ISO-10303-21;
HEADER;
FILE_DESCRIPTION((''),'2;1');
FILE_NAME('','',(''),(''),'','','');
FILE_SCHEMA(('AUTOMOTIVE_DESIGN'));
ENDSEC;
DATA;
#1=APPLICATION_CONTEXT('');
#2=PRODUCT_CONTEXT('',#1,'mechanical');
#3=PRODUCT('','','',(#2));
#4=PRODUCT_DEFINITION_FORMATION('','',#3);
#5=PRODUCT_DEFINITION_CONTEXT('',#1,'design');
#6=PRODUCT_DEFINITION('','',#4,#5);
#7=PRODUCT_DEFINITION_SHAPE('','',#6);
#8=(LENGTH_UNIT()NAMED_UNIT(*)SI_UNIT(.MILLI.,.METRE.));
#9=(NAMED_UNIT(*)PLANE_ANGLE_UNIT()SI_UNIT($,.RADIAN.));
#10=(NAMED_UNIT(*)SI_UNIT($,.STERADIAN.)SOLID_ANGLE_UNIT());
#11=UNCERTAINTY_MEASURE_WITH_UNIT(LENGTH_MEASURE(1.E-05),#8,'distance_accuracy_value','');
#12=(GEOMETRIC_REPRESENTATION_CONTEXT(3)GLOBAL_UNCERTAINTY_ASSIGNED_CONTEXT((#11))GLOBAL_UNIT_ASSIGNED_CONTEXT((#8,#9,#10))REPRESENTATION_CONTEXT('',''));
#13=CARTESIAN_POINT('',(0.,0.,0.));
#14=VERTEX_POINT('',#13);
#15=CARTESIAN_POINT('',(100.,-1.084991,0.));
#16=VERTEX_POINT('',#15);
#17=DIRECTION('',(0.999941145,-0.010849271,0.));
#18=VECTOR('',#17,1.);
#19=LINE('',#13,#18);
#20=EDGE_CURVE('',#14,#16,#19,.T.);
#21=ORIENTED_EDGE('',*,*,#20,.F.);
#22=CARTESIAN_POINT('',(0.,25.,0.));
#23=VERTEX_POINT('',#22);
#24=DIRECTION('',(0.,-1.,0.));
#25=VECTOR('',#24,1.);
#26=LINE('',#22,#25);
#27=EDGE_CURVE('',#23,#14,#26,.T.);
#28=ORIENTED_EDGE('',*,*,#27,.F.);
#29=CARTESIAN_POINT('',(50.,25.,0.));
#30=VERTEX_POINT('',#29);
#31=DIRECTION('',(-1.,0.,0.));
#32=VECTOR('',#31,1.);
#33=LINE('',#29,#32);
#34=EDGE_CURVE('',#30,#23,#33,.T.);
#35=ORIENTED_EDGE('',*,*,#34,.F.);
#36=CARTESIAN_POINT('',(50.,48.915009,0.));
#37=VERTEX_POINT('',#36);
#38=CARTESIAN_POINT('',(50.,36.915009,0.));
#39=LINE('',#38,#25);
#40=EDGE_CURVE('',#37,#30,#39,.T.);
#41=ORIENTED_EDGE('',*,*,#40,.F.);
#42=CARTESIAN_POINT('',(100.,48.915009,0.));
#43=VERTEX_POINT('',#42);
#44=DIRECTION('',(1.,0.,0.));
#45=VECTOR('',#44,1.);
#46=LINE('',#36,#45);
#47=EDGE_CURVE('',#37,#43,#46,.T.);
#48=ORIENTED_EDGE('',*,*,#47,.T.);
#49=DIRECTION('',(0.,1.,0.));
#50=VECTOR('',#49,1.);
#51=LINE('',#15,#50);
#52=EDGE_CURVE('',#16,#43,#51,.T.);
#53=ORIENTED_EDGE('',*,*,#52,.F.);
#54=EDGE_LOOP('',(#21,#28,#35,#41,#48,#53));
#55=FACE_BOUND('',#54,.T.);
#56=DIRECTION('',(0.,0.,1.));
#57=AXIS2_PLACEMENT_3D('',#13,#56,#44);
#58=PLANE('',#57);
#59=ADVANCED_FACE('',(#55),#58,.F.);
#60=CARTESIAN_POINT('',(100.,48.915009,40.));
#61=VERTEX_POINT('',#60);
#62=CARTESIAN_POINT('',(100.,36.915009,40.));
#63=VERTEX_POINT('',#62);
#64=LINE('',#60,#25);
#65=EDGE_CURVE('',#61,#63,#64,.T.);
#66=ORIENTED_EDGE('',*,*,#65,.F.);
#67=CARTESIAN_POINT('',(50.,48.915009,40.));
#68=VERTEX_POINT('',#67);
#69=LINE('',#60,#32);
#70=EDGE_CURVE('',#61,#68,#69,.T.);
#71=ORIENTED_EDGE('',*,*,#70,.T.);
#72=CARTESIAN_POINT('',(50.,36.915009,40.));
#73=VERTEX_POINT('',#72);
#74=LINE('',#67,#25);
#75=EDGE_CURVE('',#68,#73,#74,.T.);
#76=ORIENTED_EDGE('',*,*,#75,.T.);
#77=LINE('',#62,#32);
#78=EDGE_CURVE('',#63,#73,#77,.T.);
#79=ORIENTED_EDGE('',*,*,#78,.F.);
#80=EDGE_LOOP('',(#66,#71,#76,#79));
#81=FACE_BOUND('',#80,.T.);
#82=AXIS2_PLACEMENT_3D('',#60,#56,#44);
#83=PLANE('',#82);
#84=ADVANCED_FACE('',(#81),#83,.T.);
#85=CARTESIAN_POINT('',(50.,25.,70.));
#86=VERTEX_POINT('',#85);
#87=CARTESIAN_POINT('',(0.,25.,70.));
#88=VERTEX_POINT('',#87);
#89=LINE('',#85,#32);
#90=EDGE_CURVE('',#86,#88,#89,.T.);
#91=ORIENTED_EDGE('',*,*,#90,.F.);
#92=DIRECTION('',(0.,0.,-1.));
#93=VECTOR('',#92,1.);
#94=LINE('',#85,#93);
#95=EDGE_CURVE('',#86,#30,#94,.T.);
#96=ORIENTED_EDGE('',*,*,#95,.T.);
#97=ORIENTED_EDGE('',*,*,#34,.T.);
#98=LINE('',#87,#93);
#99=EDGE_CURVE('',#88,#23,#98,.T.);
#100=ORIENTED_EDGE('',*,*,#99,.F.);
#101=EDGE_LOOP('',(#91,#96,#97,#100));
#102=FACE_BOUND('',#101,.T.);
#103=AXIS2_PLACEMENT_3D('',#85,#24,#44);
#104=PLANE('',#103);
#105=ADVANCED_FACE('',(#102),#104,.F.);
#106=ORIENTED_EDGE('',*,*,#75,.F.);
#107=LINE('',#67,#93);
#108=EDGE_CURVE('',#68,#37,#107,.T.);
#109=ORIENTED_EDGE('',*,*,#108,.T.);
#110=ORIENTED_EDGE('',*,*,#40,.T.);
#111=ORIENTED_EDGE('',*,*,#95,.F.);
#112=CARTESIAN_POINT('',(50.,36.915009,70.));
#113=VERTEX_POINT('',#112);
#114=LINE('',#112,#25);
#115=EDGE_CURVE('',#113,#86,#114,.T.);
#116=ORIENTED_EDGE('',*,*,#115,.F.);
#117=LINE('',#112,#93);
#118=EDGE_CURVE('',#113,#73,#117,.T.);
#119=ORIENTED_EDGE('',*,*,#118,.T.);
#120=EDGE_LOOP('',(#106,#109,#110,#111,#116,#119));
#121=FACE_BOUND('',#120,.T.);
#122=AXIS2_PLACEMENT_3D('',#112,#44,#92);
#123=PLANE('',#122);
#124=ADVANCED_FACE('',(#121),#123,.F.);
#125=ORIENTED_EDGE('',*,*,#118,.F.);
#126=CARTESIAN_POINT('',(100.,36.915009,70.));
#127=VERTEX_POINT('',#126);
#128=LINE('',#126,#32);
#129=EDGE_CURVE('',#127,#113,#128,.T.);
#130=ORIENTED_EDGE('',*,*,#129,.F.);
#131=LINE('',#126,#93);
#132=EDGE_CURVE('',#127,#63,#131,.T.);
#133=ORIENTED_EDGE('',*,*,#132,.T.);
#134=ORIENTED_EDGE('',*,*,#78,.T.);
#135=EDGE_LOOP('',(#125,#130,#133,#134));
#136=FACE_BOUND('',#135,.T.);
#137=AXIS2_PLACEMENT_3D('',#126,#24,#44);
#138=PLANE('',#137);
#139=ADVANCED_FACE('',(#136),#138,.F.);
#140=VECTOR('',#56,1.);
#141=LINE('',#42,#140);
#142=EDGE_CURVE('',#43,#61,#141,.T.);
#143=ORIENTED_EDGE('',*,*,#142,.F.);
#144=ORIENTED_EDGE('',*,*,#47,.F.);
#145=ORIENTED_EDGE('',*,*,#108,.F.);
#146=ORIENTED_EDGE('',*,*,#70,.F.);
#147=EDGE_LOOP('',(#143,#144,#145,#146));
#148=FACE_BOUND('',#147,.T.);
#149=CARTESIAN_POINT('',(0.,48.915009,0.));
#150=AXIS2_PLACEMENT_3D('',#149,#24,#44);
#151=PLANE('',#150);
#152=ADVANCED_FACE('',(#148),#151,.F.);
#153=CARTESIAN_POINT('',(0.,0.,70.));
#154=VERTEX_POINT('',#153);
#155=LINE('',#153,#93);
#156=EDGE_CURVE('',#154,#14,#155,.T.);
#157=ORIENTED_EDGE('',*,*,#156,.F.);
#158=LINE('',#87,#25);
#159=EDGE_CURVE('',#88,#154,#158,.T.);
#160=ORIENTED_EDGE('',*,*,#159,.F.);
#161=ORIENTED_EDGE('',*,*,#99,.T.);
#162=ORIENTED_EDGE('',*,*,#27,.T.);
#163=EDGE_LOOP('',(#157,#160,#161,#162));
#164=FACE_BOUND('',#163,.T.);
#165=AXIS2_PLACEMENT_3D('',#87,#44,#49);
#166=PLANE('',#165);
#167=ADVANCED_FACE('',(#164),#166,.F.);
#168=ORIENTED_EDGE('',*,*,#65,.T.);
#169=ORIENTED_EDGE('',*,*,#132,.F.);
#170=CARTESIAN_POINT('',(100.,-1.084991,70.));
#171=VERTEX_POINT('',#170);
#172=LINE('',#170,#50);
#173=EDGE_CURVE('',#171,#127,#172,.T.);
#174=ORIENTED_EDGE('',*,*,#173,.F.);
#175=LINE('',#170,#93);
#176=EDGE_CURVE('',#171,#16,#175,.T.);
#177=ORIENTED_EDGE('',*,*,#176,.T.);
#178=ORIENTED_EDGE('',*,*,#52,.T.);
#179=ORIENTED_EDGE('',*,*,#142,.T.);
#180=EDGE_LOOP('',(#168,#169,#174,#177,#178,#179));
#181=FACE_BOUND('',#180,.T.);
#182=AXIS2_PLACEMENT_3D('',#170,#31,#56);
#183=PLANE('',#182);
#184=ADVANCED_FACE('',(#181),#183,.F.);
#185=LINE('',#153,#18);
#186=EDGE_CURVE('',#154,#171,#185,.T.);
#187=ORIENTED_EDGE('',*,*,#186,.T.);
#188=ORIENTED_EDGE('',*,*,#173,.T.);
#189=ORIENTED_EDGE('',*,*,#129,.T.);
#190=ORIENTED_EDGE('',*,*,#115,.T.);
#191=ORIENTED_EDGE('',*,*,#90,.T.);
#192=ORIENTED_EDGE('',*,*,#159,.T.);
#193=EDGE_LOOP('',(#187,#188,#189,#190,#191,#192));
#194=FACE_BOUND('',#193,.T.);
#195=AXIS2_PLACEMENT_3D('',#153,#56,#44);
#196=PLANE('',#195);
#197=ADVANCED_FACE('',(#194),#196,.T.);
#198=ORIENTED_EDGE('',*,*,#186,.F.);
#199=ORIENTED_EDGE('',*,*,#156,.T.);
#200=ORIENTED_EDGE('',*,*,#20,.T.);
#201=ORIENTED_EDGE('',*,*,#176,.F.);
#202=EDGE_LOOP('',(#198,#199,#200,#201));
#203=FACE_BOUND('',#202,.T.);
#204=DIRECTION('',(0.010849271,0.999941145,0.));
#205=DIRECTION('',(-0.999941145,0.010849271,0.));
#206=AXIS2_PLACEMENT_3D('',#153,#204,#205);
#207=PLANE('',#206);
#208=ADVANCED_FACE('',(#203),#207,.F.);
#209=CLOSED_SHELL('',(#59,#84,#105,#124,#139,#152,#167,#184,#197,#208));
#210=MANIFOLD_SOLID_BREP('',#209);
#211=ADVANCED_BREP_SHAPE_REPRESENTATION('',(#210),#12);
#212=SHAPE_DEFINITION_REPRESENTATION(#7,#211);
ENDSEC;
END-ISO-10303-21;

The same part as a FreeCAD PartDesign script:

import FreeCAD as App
import Part
import Sketcher


def add_polygon(sketch, points):
    """Adds a closed chain of lines whose ends are joined by coincident constraints."""
    first, n = sketch.GeometryCount, len(points)
    for a, b in zip(points, points[1:] + points[:1]):
        sketch.addGeometry(Part.LineSegment(App.Vector(*a, 0), App.Vector(*b, 0)), False)
    for i in range(n):
        sketch.addConstraint(Sketcher.Constraint("Coincident", first + i, 2, first + (i + 1) % n, 1))

doc = App.newDocument("Part")
body = doc.addObject("PartDesign::Body", "Body")

# Sketch on XY plane
sketch1 = body.newObject("Sketcher::SketchObject", "Sketch")
sketch1.AttachmentSupport = (doc.getObject("XY_Plane"), [""])
sketch1.MapMode = "FlatFace"
add_polygon(sketch1, [(0, 0), (100, -1), (100, 37), (50, 37), (50, 25), (0, 25)])  # lines 0-5
sketch1.addConstraint([
    Sketcher.Constraint("Vertical", 1),
    Sketcher.Constraint("Horizontal", 2),
    Sketcher.Constraint("Vertical", 3),
    Sketcher.Constraint("Horizontal", 4),
    Sketcher.Constraint("Vertical", 5),
    Sketcher.Constraint("Coincident", 5, 2, -1, 1),
    Sketcher.Constraint("Equal", 2, 4),
    Sketcher.Constraint("DistanceX", 2, 2, 2, 1, 50.0),
    Sketcher.Constraint("DistanceY", 1, 1, 1, 2, 38.0),
    Sketcher.Constraint("DistanceY", 5, 2, 5, 1, 25.0),
    Sketcher.Constraint("DistanceY", 3, 2, 3, 1, 11.915009),
])
pad1 = body.newObject("PartDesign::Pad", "Pad")
pad1.Profile = sketch1
pad1.Length = 70

# Sketch on XZ plane
sketch2 = body.newObject("Sketcher::SketchObject", "Sketch001")
sketch2.AttachmentSupport = (doc.getObject("XZ_Plane"), [""])
sketch2.MapMode = "FlatFace"
sketch2.AttachmentOffset = App.Placement(App.Vector(0, 0, -36.915009), App.Rotation())
add_polygon(sketch2, [(50, 0), (50, 40), (100, 40), (100, 0)])  # lines 0-3
sketch2.addConstraint([
    Sketcher.Constraint("Vertical", 0),
    Sketcher.Constraint("Horizontal", 1),
    Sketcher.Constraint("Vertical", 2),
    Sketcher.Constraint("Horizontal", 3),
    Sketcher.Constraint("PointOnObject", 2, 2, -1),
    Sketcher.Constraint("DistanceX", 1, 1, 1, 2, 50.0),
    Sketcher.Constraint("DistanceY", 0, 1, 0, 2, 40.0),
    Sketcher.Constraint("DistanceX", -1, 1, 0, 2, 50.0),
])
pad2 = body.newObject("PartDesign::Pad", "Pad001")
pad2.Profile = sketch2
pad2.Length = 12
pad2.Reversed = True

doc.recompute()
